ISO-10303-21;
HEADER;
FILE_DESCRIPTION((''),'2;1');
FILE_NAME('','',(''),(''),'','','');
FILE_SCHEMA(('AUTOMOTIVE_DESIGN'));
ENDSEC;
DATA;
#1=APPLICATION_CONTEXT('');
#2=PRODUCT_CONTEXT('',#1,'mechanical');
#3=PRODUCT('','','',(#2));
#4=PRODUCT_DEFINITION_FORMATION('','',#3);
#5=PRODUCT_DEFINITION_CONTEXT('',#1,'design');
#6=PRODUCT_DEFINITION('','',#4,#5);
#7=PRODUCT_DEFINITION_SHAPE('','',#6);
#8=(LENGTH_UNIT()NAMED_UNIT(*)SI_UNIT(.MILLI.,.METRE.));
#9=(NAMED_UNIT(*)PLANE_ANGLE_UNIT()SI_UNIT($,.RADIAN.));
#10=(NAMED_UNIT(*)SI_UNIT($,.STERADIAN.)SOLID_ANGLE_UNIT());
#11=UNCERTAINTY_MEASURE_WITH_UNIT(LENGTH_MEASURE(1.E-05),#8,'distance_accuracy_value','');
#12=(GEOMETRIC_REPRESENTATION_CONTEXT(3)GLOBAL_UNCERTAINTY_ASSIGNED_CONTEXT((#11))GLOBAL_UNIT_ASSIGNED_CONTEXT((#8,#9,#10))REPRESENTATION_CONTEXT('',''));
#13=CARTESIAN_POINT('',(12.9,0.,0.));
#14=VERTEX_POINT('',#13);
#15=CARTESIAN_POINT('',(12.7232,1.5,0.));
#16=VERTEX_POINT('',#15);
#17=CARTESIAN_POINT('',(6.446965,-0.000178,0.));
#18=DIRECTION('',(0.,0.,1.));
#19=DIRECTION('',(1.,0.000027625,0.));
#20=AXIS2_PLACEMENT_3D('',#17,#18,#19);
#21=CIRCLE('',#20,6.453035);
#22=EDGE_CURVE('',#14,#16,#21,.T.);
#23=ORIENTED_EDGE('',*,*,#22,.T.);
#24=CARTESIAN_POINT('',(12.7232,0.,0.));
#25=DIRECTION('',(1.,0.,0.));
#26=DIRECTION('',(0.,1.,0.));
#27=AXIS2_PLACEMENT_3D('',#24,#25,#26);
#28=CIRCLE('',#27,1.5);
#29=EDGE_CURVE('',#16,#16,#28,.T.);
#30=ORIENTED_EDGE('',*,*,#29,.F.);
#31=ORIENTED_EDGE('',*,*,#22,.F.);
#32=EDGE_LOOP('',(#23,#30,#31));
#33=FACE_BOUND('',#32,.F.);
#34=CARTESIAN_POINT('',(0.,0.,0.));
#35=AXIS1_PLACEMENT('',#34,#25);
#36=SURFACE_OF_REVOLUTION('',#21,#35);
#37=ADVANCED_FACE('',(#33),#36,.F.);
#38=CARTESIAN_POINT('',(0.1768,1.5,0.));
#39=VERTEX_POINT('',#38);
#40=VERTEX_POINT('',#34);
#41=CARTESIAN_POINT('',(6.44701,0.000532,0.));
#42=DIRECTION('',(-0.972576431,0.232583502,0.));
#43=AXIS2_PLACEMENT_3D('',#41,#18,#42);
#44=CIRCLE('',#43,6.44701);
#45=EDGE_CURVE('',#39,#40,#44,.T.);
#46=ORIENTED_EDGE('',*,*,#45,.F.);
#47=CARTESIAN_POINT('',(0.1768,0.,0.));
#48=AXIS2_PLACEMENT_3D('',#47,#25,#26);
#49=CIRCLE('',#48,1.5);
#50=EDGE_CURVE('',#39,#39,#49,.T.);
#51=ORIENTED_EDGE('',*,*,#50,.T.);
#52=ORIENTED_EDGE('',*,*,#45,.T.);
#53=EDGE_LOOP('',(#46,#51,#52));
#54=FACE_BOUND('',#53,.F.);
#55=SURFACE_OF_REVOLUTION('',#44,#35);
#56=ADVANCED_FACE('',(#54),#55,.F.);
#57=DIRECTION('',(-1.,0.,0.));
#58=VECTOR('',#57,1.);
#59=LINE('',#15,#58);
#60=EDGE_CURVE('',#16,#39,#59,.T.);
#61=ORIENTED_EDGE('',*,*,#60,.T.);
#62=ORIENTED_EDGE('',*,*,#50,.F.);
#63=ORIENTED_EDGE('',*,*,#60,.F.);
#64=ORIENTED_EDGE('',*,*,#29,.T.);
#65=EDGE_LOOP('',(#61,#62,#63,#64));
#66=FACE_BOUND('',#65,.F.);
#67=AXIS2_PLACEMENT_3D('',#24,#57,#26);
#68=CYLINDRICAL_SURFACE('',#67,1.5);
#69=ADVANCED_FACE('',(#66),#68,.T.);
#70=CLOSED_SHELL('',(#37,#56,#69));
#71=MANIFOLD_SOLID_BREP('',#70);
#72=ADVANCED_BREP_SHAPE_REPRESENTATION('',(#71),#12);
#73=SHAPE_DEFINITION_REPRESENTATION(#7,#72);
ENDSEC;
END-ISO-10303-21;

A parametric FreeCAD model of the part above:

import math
import FreeCAD as App
import Part
import Sketcher
from FreeCAD import Vector

doc = App.newDocument("Part")
body = doc.addObject("PartDesign::Body", "Body")

sketch1 = body.newObject("Sketcher::SketchObject", "Sketch")
sketch1.AttachmentSupport = (doc.getObject("XY_Plane"), [""])
sketch1.MapMode = "FlatFace"
sketch1.addGeometry([
    Part.ArcOfCircle(Part.Circle(Vector(6.44701, 0.000532, 0), Vector(0, 0, 1), 6.44701), math.radians(166.550779), math.radians(180.004727)),
    Part.LineSegment(Vector(0, 0, 0), Vector(12.9, 0, 0)),
    Part.ArcOfCircle(Part.Circle(Vector(6.446965, -0.000178, 0), Vector(0, 0, 1), 6.453035), math.radians(0.001583), math.radians(13.442912)),
    Part.LineSegment(Vector(12.7232, 1.5, 0), Vector(0.1768, 1.5, 0)),
], False)
sketch1.addConstraint([
    Sketcher.Constraint("Coincident", 0, 2, 1, 1),
    Sketcher.Constraint("Coincident", 1, 2, 2, 1),
    Sketcher.Constraint("Coincident", 2, 2, 3, 1),
    Sketcher.Constraint("Coincident", 3, 2, 0, 1),
    Sketcher.Constraint("Horizontal", 1),
    Sketcher.Constraint("Horizontal", 3),
    Sketcher.Constraint("Coincident", 0, 2, -1, 1),
    Sketcher.Constraint("PointOnObject", 2, 3, -1),
    Sketcher.Constraint("Vertical", 0, 3, 2, 3),
    Sketcher.Constraint("DistanceX", 1, 1, 1, 2, 12.9),
    Sketcher.Constraint("Radius", 0, 6.447),
    Sketcher.Constraint("DistanceY", -1, 1, 2, 2, 1.5),
    Sketcher.Constraint("DistanceX", 3, 2, 3, 1, 12.5464),
])
revolution = body.newObject("PartDesign::Revolution", "Revolution")
revolution.Profile = sketch1
revolution.ReferenceAxis = (sketch1, ["H_Axis"])
revolution.Angle = 360

doc.recompute()
